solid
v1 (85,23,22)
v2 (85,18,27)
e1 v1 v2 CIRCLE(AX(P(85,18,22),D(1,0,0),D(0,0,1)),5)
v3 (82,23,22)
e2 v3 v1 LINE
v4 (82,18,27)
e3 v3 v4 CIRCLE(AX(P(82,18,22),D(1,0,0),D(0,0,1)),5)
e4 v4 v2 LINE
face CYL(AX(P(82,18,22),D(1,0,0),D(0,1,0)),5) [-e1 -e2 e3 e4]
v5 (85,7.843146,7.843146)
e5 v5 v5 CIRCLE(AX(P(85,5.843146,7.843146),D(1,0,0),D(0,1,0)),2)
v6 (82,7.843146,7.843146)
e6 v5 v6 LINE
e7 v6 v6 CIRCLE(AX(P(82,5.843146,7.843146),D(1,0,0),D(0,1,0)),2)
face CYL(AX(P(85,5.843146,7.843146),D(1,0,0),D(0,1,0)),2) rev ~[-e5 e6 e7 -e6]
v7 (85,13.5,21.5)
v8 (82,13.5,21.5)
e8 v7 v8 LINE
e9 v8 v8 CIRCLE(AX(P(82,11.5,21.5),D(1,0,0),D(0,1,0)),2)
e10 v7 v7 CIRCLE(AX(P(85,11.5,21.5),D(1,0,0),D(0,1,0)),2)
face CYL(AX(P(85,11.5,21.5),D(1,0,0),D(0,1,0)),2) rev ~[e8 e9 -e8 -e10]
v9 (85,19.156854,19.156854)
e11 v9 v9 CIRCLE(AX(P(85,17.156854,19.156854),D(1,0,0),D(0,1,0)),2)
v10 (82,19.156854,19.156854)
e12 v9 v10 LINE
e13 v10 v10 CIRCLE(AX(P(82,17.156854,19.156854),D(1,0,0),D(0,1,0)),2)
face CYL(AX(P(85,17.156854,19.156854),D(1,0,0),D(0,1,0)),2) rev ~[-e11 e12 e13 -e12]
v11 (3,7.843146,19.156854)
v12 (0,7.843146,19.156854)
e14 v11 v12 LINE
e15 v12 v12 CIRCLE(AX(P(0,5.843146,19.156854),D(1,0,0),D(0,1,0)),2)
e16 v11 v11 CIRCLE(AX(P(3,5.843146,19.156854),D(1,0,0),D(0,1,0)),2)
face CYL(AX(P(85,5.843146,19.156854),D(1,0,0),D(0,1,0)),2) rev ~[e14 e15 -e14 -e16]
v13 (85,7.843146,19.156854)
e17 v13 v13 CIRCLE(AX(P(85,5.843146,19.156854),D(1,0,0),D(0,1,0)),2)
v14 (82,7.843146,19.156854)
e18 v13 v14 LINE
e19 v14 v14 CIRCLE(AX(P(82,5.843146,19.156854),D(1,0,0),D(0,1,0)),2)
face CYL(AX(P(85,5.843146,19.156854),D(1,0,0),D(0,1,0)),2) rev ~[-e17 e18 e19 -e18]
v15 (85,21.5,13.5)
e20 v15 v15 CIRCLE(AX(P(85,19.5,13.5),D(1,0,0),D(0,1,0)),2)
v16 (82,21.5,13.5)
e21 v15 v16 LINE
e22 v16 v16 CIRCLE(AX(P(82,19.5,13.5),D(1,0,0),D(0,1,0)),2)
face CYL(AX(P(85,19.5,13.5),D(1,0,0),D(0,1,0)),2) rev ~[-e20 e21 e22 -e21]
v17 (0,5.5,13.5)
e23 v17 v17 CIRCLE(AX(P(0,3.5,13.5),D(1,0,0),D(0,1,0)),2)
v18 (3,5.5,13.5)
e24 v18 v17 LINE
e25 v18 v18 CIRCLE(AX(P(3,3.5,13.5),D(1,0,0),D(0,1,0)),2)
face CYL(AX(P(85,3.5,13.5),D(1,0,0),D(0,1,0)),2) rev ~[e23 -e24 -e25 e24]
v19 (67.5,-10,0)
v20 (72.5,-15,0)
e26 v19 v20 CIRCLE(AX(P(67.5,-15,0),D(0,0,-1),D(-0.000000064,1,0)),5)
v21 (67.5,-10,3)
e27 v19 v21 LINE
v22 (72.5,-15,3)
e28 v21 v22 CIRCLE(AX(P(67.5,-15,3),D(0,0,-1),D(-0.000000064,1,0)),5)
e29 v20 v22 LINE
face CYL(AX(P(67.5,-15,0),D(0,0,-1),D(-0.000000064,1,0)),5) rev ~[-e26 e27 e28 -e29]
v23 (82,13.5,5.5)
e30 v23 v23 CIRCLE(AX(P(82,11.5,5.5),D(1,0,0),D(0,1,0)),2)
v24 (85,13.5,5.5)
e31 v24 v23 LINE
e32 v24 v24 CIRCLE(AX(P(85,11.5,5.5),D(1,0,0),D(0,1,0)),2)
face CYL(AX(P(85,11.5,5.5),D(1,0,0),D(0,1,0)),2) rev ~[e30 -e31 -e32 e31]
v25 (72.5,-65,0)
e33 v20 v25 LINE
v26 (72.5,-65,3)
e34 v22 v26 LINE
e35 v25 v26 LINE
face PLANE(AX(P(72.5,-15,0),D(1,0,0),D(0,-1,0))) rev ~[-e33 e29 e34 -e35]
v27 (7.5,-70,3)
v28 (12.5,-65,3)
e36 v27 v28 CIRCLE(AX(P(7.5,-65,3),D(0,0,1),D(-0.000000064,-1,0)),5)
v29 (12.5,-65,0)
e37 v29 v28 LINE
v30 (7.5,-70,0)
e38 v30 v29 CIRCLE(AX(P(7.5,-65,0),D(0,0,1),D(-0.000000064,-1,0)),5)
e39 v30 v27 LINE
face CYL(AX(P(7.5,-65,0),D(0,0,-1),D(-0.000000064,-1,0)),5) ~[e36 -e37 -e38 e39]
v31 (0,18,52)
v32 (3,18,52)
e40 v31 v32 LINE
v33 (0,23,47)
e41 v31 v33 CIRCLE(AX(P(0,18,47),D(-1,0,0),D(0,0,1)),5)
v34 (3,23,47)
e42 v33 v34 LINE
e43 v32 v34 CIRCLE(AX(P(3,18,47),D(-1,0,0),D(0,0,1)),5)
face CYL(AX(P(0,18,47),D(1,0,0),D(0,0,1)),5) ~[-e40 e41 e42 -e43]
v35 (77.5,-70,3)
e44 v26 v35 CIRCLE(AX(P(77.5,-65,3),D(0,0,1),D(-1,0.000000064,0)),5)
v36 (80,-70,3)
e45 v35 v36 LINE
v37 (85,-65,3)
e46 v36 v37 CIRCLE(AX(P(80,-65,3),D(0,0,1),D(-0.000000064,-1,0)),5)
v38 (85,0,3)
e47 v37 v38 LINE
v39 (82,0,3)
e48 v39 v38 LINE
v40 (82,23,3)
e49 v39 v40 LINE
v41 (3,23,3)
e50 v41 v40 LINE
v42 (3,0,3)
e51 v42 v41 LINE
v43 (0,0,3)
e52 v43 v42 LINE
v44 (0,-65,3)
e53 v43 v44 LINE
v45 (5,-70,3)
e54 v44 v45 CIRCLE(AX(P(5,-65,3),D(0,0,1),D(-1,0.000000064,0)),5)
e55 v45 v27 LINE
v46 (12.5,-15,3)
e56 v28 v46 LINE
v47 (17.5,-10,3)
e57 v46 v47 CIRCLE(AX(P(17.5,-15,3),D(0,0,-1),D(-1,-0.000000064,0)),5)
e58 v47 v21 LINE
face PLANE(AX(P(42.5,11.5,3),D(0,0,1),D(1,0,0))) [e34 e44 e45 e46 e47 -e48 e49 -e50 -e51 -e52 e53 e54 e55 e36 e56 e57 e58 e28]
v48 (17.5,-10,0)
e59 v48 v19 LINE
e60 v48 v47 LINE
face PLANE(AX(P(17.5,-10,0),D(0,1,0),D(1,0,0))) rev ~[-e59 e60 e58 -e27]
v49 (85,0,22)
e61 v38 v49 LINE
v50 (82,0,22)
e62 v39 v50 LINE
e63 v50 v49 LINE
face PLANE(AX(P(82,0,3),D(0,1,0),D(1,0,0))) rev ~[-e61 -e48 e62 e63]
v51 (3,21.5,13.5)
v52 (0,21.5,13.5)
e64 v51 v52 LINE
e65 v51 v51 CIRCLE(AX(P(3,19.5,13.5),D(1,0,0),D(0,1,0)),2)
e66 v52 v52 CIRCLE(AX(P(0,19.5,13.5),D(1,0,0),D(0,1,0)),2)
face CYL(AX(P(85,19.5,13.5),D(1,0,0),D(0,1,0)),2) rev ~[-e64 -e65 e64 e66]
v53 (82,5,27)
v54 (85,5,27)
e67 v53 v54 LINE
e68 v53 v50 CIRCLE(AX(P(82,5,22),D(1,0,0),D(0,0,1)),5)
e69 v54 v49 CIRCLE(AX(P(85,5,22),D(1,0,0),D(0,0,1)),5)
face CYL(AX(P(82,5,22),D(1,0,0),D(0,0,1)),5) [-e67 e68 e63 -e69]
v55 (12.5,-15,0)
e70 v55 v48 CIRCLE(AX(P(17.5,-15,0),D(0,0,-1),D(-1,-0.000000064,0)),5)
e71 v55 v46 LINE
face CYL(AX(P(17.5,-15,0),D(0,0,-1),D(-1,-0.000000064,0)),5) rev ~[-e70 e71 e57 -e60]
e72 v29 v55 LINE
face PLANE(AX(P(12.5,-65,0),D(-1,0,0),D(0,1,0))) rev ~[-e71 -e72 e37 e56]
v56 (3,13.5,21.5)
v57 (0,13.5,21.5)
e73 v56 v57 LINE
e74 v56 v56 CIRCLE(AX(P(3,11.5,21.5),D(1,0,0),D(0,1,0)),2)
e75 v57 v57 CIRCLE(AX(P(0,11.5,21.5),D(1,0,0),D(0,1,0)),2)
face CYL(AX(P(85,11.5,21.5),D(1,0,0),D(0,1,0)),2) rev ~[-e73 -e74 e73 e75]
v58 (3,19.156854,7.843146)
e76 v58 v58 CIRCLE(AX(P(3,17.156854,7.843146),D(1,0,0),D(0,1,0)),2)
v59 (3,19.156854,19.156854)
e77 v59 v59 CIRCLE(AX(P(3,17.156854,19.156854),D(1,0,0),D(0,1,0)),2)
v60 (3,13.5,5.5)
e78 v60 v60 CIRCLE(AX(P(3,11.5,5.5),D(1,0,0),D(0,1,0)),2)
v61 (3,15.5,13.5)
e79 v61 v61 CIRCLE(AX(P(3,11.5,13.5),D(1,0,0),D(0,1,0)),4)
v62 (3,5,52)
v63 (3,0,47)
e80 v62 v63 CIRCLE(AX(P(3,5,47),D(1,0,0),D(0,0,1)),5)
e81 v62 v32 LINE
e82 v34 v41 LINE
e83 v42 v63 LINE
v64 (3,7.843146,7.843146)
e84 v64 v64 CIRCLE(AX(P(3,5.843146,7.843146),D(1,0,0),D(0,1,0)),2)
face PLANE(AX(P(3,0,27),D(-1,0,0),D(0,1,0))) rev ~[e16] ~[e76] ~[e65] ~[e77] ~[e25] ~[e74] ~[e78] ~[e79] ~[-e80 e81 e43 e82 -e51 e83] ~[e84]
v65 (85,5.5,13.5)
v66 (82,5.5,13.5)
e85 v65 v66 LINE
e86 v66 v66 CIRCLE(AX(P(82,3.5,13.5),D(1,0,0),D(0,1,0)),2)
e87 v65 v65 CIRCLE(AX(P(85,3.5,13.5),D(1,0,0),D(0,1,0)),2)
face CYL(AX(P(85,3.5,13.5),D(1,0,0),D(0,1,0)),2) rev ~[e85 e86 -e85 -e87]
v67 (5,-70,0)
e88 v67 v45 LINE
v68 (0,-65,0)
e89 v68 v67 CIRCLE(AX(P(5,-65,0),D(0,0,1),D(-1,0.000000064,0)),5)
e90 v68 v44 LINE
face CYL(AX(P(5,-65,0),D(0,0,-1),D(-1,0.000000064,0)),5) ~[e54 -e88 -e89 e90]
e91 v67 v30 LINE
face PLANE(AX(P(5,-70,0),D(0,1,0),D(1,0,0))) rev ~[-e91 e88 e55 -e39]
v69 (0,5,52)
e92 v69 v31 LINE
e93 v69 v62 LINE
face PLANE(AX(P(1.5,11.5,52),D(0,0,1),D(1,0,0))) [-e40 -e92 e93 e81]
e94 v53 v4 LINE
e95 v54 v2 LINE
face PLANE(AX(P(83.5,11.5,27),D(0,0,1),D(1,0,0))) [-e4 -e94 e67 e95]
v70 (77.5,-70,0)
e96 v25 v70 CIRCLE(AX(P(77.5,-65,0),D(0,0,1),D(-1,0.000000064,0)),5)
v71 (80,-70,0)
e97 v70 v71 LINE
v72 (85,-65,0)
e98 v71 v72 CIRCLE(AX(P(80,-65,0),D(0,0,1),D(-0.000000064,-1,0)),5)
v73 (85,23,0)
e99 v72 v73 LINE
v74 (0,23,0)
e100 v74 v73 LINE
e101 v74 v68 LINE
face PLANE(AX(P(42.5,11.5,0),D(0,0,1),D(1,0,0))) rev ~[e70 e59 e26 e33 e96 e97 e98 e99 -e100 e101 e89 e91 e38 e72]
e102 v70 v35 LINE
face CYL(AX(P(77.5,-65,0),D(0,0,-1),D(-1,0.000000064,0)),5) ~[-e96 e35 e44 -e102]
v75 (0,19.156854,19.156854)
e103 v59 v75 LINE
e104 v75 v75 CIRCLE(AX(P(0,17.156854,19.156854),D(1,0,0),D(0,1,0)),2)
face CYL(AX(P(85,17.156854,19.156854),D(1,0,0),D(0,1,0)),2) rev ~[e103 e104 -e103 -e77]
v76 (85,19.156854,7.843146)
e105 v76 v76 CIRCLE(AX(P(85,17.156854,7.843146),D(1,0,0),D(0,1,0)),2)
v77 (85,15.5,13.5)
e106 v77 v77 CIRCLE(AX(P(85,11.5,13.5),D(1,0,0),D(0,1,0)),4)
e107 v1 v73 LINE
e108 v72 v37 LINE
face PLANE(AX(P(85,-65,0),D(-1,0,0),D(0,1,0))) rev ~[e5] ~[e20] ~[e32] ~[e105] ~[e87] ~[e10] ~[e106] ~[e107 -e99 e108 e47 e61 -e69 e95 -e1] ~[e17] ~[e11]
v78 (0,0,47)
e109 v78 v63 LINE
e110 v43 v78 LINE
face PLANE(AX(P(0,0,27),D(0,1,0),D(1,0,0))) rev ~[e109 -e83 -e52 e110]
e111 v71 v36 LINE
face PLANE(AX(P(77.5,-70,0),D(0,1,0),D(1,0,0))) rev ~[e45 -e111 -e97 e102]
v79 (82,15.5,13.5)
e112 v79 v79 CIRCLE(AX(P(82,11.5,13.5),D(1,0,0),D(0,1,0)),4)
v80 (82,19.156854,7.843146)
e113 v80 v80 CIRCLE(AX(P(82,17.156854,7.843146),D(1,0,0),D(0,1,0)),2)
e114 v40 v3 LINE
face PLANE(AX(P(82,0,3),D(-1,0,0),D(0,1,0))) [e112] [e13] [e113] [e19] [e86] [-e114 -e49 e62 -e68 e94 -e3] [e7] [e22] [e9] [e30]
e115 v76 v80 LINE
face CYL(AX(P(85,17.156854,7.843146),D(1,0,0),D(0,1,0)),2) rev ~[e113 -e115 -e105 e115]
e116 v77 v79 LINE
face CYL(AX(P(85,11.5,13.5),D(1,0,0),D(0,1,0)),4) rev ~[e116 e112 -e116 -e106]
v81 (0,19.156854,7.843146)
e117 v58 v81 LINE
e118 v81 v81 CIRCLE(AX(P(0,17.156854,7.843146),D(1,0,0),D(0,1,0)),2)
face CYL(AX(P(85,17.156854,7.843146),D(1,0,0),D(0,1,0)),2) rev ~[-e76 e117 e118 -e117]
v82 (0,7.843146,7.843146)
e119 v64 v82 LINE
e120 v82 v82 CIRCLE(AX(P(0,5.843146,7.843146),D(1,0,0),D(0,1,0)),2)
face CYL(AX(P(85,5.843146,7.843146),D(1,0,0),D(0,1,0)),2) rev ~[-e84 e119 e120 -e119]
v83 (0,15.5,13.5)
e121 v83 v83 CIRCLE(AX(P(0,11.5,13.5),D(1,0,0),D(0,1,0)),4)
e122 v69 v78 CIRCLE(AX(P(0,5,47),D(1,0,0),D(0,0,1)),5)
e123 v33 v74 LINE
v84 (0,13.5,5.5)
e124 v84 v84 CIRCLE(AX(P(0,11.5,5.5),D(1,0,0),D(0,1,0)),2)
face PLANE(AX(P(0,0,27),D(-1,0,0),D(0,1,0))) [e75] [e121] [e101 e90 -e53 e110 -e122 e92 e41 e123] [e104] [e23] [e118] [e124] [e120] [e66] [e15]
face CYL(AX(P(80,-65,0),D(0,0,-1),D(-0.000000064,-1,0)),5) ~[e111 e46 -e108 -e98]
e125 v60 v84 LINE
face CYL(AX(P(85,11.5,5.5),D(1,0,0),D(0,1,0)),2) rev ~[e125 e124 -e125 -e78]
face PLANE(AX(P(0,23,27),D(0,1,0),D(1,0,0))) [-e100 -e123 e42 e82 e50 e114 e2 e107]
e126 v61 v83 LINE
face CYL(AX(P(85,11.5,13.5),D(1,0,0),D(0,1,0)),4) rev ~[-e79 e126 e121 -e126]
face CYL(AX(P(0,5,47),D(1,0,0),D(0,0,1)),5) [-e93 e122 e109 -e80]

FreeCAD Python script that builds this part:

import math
import FreeCAD as App
import Part
import Sketcher


def edges_at(feature, points):
    """Names of the edges that pass closest to the given points."""
    edges = feature.Shape.Edges
    near = lambda p: min(range(len(edges)), key=lambda i: edges[i].distToShape(Part.Vertex(*p))[0])
    return sorted({f"Edge{near(p) + 1}" for p in points})

doc = App.newDocument("Part")
body = doc.addObject("PartDesign::Body", "Body")

# Sketch on XY plane
sketch1 = body.newObject("Sketcher::SketchObject", "Sketch")
sketch1.AttachmentSupport = (doc.getObject("XY_Plane"), [""])
sketch1.MapMode = "FlatFace"
sketch1.addGeometry(Part.LineSegment(App.Vector(0, 23, 0), App.Vector(0, -65, 0)), False)
sketch1.addGeometry(Part.ArcOfCircle(Part.Circle(App.Vector(5, -65, 0), App.Vector(0, 0, 1), 5), math.radians(180), math.radians(270)), False)
sketch1.addGeometry(Part.LineSegment(App.Vector(5, -70, 0), App.Vector(7.5, -70, 0)), False)
sketch1.addGeometry(Part.ArcOfCircle(Part.Circle(App.Vector(7.5, -65, 0), App.Vector(0, 0, 1), 5), math.radians(-90), math.radians(0)), False)
sketch1.addGeometry(Part.LineSegment(App.Vector(12.5, -65, 0), App.Vector(12.5, -15, 0)), False)
sketch1.addGeometry(Part.ArcOfCircle(Part.Circle(App.Vector(17.5, -15, 0), App.Vector(0, 0, 1), 5), math.radians(90), math.radians(180)), False)
sketch1.addGeometry(Part.LineSegment(App.Vector(17.5, -10, 0), App.Vector(67.5, -10, 0)), False)
sketch1.addGeometry(Part.ArcOfCircle(Part.Circle(App.Vector(67.5, -15, 0), App.Vector(0, 0, 1), 5), math.radians(0), math.radians(90)), False)
sketch1.addGeometry(Part.LineSegment(App.Vector(72.5, -15, 0), App.Vector(72.5, -65, 0)), False)
sketch1.addGeometry(Part.ArcOfCircle(Part.Circle(App.Vector(77.5, -65, 0), App.Vector(0, 0, 1), 5), math.radians(180), math.radians(270)), False)
sketch1.addGeometry(Part.LineSegment(App.Vector(77.5, -70, 0), App.Vector(80, -70, 0)), False)
sketch1.addGeometry(Part.ArcOfCircle(Part.Circle(App.Vector(80, -65, 0), App.Vector(0, 0, 1), 5), math.radians(-90), math.radians(0)), False)
sketch1.addGeometry(Part.LineSegment(App.Vector(85, -65, 0), App.Vector(85, 23, 0)), False)
sketch1.addGeometry(Part.LineSegment(App.Vector(85, 23, 0), App.Vector(0, 23, 0)), False)
sketch1.addConstraint(Sketcher.Constraint("Tangent", 0, 2, 1, 1))
sketch1.addConstraint(Sketcher.Constraint("Tangent", 1, 2, 2, 1))
sketch1.addConstraint(Sketcher.Constraint("Tangent", 2, 2, 3, 1))
sketch1.addConstraint(Sketcher.Constraint("Tangent", 3, 2, 4, 1))
sketch1.addConstraint(Sketcher.Constraint("Tangent", 4, 2, 5, 2))
sketch1.addConstraint(Sketcher.Constraint("Tangent", 5, 1, 6, 1))
sketch1.addConstraint(Sketcher.Constraint("Tangent", 6, 2, 7, 2))
sketch1.addConstraint(Sketcher.Constraint("Tangent", 7, 1, 8, 1))
sketch1.addConstraint(Sketcher.Constraint("Tangent", 8, 2, 9, 1))
sketch1.addConstraint(Sketcher.Constraint("Tangent", 9, 2, 10, 1))
sketch1.addConstraint(Sketcher.Constraint("Tangent", 10, 2, 11, 1))
sketch1.addConstraint(Sketcher.Constraint("Tangent", 11, 2, 12, 1))
sketch1.addConstraint(Sketcher.Constraint("Coincident", 12, 2, 13, 1))
sketch1.addConstraint(Sketcher.Constraint("Coincident", 13, 2, 0, 1))
sketch1.addConstraint(Sketcher.Constraint("Vertical", 0))
sketch1.addConstraint(Sketcher.Constraint("Horizontal", 2))
sketch1.addConstraint(Sketcher.Constraint("Vertical", 4))
sketch1.addConstraint(Sketcher.Constraint("Horizontal", 6))
sketch1.addConstraint(Sketcher.Constraint("Vertical", 8))
sketch1.addConstraint(Sketcher.Constraint("Horizontal", 10))
sketch1.addConstraint(Sketcher.Constraint("Vertical", 12))
sketch1.addConstraint(Sketcher.Constraint("Horizontal", 13))
sketch1.addConstraint(Sketcher.Constraint("Equal", 1, 3))
sketch1.addConstraint(Sketcher.Constraint("Equal", 3, 5))
sketch1.addConstraint(Sketcher.Constraint("Equal", 5, 7))
sketch1.addConstraint(Sketcher.Constraint("Equal", 7, 9))
sketch1.addConstraint(Sketcher.Constraint("Equal", 9, 11))
sketch1.addConstraint(Sketcher.Constraint("PointOnObject", 0, 2, -2))
sketch1.addConstraint(Sketcher.Constraint("Horizontal", 3, 3, 9, 3))
sketch1.addConstraint(Sketcher.Constraint("Equal", 2, 10))
sketch1.addConstraint(Sketcher.Constraint("Equal", 6, 4))
sketch1.addConstraint(Sketcher.Constraint("Radius", 1, 5.0))
sketch1.addConstraint(Sketcher.Constraint("DistanceX", 6, 1, 6, 2, 50.0))
sketch1.addConstraint(Sketcher.Constraint("DistanceX", 13, 2, 13, 1, 85.0))
sketch1.addConstraint(Sketcher.Constraint("DistanceY", 0, 2, 0, 1, 88.0))
sketch1.addConstraint(Sketcher.Constraint("DistanceY", 1, 3, -1, 1, 65.0))
pad1 = body.newObject("PartDesign::Pad", "Pad")
pad1.Profile = sketch1
pad1.Length = 3

# Sketch on XY plane
sketch2 = body.newObject("Sketcher::SketchObject", "Sketch001")
sketch2.AttachmentSupport = (doc.getObject("XY_Plane"), [""])
sketch2.MapMode = "FlatFace"
sketch2.AttachmentOffset = App.Placement(App.Vector(0, 0, 3), App.Rotation())
sketch2.addGeometry(Part.LineSegment(App.Vector(0, 23, 0), App.Vector(0, 0, 0)), False)
sketch2.addGeometry(Part.LineSegment(App.Vector(0, 0, 0), App.Vector(3, 0, 0)), False)
sketch2.addGeometry(Part.LineSegment(App.Vector(3, 0, 0), App.Vector(3, 23, 0)), False)
sketch2.addGeometry(Part.LineSegment(App.Vector(3, 23, 0), App.Vector(0, 23, 0)), False)
sketch2.addGeometry(Part.LineSegment(App.Vector(82, 23, 0), App.Vector(82, 0, 0)), False)
sketch2.addGeometry(Part.LineSegment(App.Vector(82, 0, 0), App.Vector(85, 0, 0)), False)
sketch2.addGeometry(Part.LineSegment(App.Vector(85, 0, 0), App.Vector(85, 23, 0)), False)
sketch2.addGeometry(Part.LineSegment(App.Vector(85, 23, 0), App.Vector(82, 23, 0)), False)
sketch2.addConstraint(Sketcher.Constraint("Coincident", 0, 2, 1, 1))
sketch2.addConstraint(Sketcher.Constraint("Coincident", 1, 2, 2, 1))
sketch2.addConstraint(Sketcher.Constraint("Coincident", 2, 2, 3, 1))
sketch2.addConstraint(Sketcher.Constraint("Coincident", 3, 2, 0, 1))
sketch2.addConstraint(Sketcher.Constraint("Coincident", 4, 2, 5, 1))
sketch2.addConstraint(Sketcher.Constraint("Coincident", 5, 2, 6, 1))
sketch2.addConstraint(Sketcher.Constraint("Coincident", 6, 2, 7, 1))
sketch2.addConstraint(Sketcher.Constraint("Coincident", 7, 2, 4, 1))
sketch2.addConstraint(Sketcher.Constraint("Vertical", 0))
sketch2.addConstraint(Sketcher.Constraint("Horizontal", 1))
sketch2.addConstraint(Sketcher.Constraint("Vertical", 2))
sketch2.addConstraint(Sketcher.Constraint("Horizontal", 3))
sketch2.addConstraint(Sketcher.Constraint("Vertical", 4))
sketch2.addConstraint(Sketcher.Constraint("Horizontal", 5))
sketch2.addConstraint(Sketcher.Constraint("Vertical", 6))
sketch2.addConstraint(Sketcher.Constraint("Horizontal", 7))
sketch2.addConstraint(Sketcher.Constraint("Coincident", 0, 2, -1, 1))
sketch2.addConstraint(Sketcher.Constraint("PointOnObject", 4, 2, -1))
sketch2.addConstraint(Sketcher.Constraint("Horizontal", 3, 2, 6, 2))
sketch2.addConstraint(Sketcher.Constraint("Equal", 3, 5))
sketch2.addConstraint(Sketcher.Constraint("DistanceX", 1, 1, 1, 2, 3.0))
sketch2.addConstraint(Sketcher.Constraint("DistanceY", 0, 2, 0, 1, 23.0))
sketch2.addConstraint(Sketcher.Constraint("DistanceX", -1, 1, 4, 2, 82.0))
pad2 = body.newObject("PartDesign::Pad", "Pad001")
pad2.Profile = sketch2
pad2.Length = 24

# Sketch on XY plane
sketch3 = body.newObject("Sketcher::SketchObject", "Sketch002")
sketch3.AttachmentSupport = (doc.getObject("XY_Plane"), [""])
sketch3.MapMode = "FlatFace"
sketch3.AttachmentOffset = App.Placement(App.Vector(0, 0, 27), App.Rotation())
sketch3.addGeometry(Part.LineSegment(App.Vector(0, 23, 0), App.Vector(0, 0, 0)), False)
sketch3.addGeometry(Part.LineSegment(App.Vector(0, 0, 0), App.Vector(3, 0, 0)), False)
sketch3.addGeometry(Part.LineSegment(App.Vector(3, 0, 0), App.Vector(3, 23, 0)), False)
sketch3.addGeometry(Part.LineSegment(App.Vector(3, 23, 0), App.Vector(0, 23, 0)), False)
sketch3.addConstraint(Sketcher.Constraint("Coincident", 0, 2, 1, 1))
sketch3.addConstraint(Sketcher.Constraint("Coincident", 1, 2, 2, 1))
sketch3.addConstraint(Sketcher.Constraint("Coincident", 2, 2, 3, 1))
sketch3.addConstraint(Sketcher.Constraint("Coincident", 3, 2, 0, 1))
sketch3.addConstraint(Sketcher.Constraint("Vertical", 0))
sketch3.addConstraint(Sketcher.Constraint("Horizontal", 1))
sketch3.addConstraint(Sketcher.Constraint("Vertical", 2))
sketch3.addConstraint(Sketcher.Constraint("Horizontal", 3))
sketch3.addConstraint(Sketcher.Constraint("Coincident", 0, 2, -1, 1))
sketch3.addConstraint(Sketcher.Constraint("DistanceX", 1, 1, 1, 2, 3.0))
sketch3.addConstraint(Sketcher.Constraint("DistanceY", 0, 2, 0, 1, 23.0))
pad3 = body.newObject("PartDesign::Pad", "Pad002")
pad3.Profile = sketch3
pad3.Length = 25

# Sketch on YZ plane
sketch4 = body.newObject("Sketcher::SketchObject", "Sketch003")
sketch4.AttachmentSupport = (doc.getObject("YZ_Plane"), [""])
sketch4.MapMode = "FlatFace"
sketch4.AttachmentOffset = App.Placement(App.Vector(0, 0, 85), App.Rotation())
sketch4.addGeometry(Part.Circle(App.Vector(11.5, 13.5, 0), App.Vector(0, 0, 1), 4), False)
sketch4.addGeometry(Part.Circle(App.Vector(5.8, 19.2, 0), App.Vector(0, 0, 1), 2), False)
sketch4.addGeometry(Part.Circle(App.Vector(11.5, 21.5, 0), App.Vector(0, 0, 1), 2), False)
sketch4.addGeometry(Part.Circle(App.Vector(17.2, 19.2, 0), App.Vector(0, 0, 1), 2), False)
sketch4.addGeometry(Part.Circle(App.Vector(19.5, 13.5, 0), App.Vector(0, 0, 1), 2), False)
sketch4.addGeometry(Part.Circle(App.Vector(17.2, 7.8, 0), App.Vector(0, 0, 1), 2), False)
sketch4.addGeometry(Part.Circle(App.Vector(11.5, 5.5, 0), App.Vector(0, 0, 1), 2), False)
sketch4.addGeometry(Part.Circle(App.Vector(5.8, 7.8, 0), App.Vector(0, 0, 1), 2), False)
sketch4.addGeometry(Part.Circle(App.Vector(3.5, 13.5, 0), App.Vector(0, 0, 1), 2), False)
sketch4.addConstraint(Sketcher.Constraint("Equal", 1, 2))
sketch4.addConstraint(Sketcher.Constraint("Equal", 2, 3))
sketch4.addConstraint(Sketcher.Constraint("Equal", 3, 4))
sketch4.addConstraint(Sketcher.Constraint("Equal", 4, 5))
sketch4.addConstraint(Sketcher.Constraint("Equal", 5, 6))
sketch4.addConstraint(Sketcher.Constraint("Equal", 6, 7))
sketch4.addConstraint(Sketcher.Constraint("Equal", 7, 8))
sketch4.addConstraint(Sketcher.Constraint("Horizontal", 1, 3, 3, 3))
sketch4.addConstraint(Sketcher.Constraint("Horizontal", 0, 3, 4, 3))
sketch4.addConstraint(Sketcher.Constraint("Horizontal", 5, 3, 7, 3))
sketch4.addConstraint(Sketcher.Constraint("Horizontal", 4, 3, 8, 3))
sketch4.addConstraint(Sketcher.Constraint("Vertical", 0, 3, 2, 3))
sketch4.addConstraint(Sketcher.Constraint("Vertical", 3, 3, 5, 3))
sketch4.addConstraint(Sketcher.Constraint("Vertical", 2, 3, 6, 3))
sketch4.addConstraint(Sketcher.Constraint("Vertical", 1, 3, 7, 3))
sketch4.addConstraint(Sketcher.Constraint("Diameter", 0, 8.0))
sketch4.addConstraint(Sketcher.Constraint("Diameter", 1, 4.0))
sketch4.addConstraint(Sketcher.Constraint("DistanceY", 0, 3, 2, 3, 8.0))
sketch4.addConstraint(Sketcher.Constraint("DistanceX", 0, 3, 4, 3, 8.0))
sketch4.addConstraint(Sketcher.Constraint("DistanceY", 6, 3, 0, 3, 8.0))
sketch4.addConstraint(Sketcher.Constraint("DistanceX", 8, 3, 0, 3, 8.0))
sketch4.addConstraint(Sketcher.Constraint("DistanceX", -1, 1, 0, 3, 11.5))
sketch4.addConstraint(Sketcher.Constraint("DistanceY", -1, 1, 0, 3, 13.5))
sketch4.addConstraint(Sketcher.Constraint("DistanceX", -1, 1, 1, 3, 5.843146))
sketch4.addConstraint(Sketcher.Constraint("DistanceY", -1, 1, 1, 3, 19.156854))
sketch4.addConstraint(Sketcher.Constraint("DistanceX", -1, 1, 3, 3, 17.156854))
sketch4.addConstraint(Sketcher.Constraint("DistanceY", -1, 1, 5, 3, 7.843146))
pocket1 = body.newObject("PartDesign::Pocket", "Pocket")
pocket1.Profile = sketch4
pocket1.Length = 250
doc.recompute()

fillet = body.newObject("PartDesign::Fillet", "Fillet")
fillet.Base = (pocket1, edges_at(pocket1, [
    (1.5, 23, 52),
    (1.5, 0, 52),
    (83.5, 23, 27),
    (83.5, 0, 27),
]))
fillet.Radius = 5

doc.recompute()
